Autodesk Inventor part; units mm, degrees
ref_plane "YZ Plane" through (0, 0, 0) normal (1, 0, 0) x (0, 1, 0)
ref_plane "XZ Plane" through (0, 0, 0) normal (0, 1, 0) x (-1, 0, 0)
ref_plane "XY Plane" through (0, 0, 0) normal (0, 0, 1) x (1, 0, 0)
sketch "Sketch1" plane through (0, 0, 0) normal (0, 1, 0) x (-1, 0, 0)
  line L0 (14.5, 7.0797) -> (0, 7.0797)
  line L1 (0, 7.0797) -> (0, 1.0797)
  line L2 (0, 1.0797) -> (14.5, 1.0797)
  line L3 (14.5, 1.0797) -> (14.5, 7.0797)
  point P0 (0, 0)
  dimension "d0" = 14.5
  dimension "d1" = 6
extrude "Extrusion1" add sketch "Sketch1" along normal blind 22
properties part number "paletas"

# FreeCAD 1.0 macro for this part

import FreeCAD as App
import Part
import Sketcher


def add_polygon(sketch, points):
    """Adds a closed chain of lines whose ends are joined by coincident constraints."""
    first, n = sketch.GeometryCount, len(points)
    for a, b in zip(points, points[1:] + points[:1]):
        sketch.addGeometry(Part.LineSegment(App.Vector(*a, 0), App.Vector(*b, 0)), False)
    for i in range(n):
        sketch.addConstraint(Sketcher.Constraint("Coincident", first + i, 2, first + (i + 1) % n, 1))

doc = App.newDocument("Part")
params = doc.addObject("Spreadsheet::Sheet", "Params")
for row, (alias, value) in enumerate([
    ("sketch1_height", "6 mm"),
    ("sketch1_width", "14.5 mm"),
    ("pad1_length", "22 mm"),
], start=1):
    params.set(f"A{row}", alias)
    params.set(f"B{row}", "=" + value)
    params.setAlias(f"B{row}", alias)

body = doc.addObject("PartDesign::Body", "Body")

# Sketch on XZ plane
sketch1 = body.newObject("Sketcher::SketchObject", "Sketch")
sketch1.AttachmentSupport = (doc.getObject("XZ_Plane"), [""])
sketch1.MapMode = "FlatFace"
add_polygon(sketch1, [(-14, 1), (-14, 7), (0, 7), (0, 1)])  # lines 0-3
sketch1.addConstraint([
    Sketcher.Constraint("Vertical", 0),
    Sketcher.Constraint("Horizontal", 1),
    Sketcher.Constraint("Vertical", 2),
    Sketcher.Constraint("Horizontal", 3),
    Sketcher.Constraint("PointOnObject", 1, 2, -2),
    Sketcher.Constraint("DistanceY", 0, 1, 0, 2, 6.0),
    Sketcher.Constraint("DistanceX", 1, 1, 1, 2, 14.5),
    Sketcher.Constraint("DistanceY", -1, 1, 0, 2, 7.0797),
])
sketch1.setExpression("Constraints[9]", "Params.sketch1_height")
sketch1.setExpression("Constraints[10]", "Params.sketch1_width")
pad1 = body.newObject("PartDesign::Pad", "Pad")
pad1.Profile = sketch1
pad1.setExpression("Length", "Params.pad1_length")
pad1.Reversed = True

doc.recompute()
